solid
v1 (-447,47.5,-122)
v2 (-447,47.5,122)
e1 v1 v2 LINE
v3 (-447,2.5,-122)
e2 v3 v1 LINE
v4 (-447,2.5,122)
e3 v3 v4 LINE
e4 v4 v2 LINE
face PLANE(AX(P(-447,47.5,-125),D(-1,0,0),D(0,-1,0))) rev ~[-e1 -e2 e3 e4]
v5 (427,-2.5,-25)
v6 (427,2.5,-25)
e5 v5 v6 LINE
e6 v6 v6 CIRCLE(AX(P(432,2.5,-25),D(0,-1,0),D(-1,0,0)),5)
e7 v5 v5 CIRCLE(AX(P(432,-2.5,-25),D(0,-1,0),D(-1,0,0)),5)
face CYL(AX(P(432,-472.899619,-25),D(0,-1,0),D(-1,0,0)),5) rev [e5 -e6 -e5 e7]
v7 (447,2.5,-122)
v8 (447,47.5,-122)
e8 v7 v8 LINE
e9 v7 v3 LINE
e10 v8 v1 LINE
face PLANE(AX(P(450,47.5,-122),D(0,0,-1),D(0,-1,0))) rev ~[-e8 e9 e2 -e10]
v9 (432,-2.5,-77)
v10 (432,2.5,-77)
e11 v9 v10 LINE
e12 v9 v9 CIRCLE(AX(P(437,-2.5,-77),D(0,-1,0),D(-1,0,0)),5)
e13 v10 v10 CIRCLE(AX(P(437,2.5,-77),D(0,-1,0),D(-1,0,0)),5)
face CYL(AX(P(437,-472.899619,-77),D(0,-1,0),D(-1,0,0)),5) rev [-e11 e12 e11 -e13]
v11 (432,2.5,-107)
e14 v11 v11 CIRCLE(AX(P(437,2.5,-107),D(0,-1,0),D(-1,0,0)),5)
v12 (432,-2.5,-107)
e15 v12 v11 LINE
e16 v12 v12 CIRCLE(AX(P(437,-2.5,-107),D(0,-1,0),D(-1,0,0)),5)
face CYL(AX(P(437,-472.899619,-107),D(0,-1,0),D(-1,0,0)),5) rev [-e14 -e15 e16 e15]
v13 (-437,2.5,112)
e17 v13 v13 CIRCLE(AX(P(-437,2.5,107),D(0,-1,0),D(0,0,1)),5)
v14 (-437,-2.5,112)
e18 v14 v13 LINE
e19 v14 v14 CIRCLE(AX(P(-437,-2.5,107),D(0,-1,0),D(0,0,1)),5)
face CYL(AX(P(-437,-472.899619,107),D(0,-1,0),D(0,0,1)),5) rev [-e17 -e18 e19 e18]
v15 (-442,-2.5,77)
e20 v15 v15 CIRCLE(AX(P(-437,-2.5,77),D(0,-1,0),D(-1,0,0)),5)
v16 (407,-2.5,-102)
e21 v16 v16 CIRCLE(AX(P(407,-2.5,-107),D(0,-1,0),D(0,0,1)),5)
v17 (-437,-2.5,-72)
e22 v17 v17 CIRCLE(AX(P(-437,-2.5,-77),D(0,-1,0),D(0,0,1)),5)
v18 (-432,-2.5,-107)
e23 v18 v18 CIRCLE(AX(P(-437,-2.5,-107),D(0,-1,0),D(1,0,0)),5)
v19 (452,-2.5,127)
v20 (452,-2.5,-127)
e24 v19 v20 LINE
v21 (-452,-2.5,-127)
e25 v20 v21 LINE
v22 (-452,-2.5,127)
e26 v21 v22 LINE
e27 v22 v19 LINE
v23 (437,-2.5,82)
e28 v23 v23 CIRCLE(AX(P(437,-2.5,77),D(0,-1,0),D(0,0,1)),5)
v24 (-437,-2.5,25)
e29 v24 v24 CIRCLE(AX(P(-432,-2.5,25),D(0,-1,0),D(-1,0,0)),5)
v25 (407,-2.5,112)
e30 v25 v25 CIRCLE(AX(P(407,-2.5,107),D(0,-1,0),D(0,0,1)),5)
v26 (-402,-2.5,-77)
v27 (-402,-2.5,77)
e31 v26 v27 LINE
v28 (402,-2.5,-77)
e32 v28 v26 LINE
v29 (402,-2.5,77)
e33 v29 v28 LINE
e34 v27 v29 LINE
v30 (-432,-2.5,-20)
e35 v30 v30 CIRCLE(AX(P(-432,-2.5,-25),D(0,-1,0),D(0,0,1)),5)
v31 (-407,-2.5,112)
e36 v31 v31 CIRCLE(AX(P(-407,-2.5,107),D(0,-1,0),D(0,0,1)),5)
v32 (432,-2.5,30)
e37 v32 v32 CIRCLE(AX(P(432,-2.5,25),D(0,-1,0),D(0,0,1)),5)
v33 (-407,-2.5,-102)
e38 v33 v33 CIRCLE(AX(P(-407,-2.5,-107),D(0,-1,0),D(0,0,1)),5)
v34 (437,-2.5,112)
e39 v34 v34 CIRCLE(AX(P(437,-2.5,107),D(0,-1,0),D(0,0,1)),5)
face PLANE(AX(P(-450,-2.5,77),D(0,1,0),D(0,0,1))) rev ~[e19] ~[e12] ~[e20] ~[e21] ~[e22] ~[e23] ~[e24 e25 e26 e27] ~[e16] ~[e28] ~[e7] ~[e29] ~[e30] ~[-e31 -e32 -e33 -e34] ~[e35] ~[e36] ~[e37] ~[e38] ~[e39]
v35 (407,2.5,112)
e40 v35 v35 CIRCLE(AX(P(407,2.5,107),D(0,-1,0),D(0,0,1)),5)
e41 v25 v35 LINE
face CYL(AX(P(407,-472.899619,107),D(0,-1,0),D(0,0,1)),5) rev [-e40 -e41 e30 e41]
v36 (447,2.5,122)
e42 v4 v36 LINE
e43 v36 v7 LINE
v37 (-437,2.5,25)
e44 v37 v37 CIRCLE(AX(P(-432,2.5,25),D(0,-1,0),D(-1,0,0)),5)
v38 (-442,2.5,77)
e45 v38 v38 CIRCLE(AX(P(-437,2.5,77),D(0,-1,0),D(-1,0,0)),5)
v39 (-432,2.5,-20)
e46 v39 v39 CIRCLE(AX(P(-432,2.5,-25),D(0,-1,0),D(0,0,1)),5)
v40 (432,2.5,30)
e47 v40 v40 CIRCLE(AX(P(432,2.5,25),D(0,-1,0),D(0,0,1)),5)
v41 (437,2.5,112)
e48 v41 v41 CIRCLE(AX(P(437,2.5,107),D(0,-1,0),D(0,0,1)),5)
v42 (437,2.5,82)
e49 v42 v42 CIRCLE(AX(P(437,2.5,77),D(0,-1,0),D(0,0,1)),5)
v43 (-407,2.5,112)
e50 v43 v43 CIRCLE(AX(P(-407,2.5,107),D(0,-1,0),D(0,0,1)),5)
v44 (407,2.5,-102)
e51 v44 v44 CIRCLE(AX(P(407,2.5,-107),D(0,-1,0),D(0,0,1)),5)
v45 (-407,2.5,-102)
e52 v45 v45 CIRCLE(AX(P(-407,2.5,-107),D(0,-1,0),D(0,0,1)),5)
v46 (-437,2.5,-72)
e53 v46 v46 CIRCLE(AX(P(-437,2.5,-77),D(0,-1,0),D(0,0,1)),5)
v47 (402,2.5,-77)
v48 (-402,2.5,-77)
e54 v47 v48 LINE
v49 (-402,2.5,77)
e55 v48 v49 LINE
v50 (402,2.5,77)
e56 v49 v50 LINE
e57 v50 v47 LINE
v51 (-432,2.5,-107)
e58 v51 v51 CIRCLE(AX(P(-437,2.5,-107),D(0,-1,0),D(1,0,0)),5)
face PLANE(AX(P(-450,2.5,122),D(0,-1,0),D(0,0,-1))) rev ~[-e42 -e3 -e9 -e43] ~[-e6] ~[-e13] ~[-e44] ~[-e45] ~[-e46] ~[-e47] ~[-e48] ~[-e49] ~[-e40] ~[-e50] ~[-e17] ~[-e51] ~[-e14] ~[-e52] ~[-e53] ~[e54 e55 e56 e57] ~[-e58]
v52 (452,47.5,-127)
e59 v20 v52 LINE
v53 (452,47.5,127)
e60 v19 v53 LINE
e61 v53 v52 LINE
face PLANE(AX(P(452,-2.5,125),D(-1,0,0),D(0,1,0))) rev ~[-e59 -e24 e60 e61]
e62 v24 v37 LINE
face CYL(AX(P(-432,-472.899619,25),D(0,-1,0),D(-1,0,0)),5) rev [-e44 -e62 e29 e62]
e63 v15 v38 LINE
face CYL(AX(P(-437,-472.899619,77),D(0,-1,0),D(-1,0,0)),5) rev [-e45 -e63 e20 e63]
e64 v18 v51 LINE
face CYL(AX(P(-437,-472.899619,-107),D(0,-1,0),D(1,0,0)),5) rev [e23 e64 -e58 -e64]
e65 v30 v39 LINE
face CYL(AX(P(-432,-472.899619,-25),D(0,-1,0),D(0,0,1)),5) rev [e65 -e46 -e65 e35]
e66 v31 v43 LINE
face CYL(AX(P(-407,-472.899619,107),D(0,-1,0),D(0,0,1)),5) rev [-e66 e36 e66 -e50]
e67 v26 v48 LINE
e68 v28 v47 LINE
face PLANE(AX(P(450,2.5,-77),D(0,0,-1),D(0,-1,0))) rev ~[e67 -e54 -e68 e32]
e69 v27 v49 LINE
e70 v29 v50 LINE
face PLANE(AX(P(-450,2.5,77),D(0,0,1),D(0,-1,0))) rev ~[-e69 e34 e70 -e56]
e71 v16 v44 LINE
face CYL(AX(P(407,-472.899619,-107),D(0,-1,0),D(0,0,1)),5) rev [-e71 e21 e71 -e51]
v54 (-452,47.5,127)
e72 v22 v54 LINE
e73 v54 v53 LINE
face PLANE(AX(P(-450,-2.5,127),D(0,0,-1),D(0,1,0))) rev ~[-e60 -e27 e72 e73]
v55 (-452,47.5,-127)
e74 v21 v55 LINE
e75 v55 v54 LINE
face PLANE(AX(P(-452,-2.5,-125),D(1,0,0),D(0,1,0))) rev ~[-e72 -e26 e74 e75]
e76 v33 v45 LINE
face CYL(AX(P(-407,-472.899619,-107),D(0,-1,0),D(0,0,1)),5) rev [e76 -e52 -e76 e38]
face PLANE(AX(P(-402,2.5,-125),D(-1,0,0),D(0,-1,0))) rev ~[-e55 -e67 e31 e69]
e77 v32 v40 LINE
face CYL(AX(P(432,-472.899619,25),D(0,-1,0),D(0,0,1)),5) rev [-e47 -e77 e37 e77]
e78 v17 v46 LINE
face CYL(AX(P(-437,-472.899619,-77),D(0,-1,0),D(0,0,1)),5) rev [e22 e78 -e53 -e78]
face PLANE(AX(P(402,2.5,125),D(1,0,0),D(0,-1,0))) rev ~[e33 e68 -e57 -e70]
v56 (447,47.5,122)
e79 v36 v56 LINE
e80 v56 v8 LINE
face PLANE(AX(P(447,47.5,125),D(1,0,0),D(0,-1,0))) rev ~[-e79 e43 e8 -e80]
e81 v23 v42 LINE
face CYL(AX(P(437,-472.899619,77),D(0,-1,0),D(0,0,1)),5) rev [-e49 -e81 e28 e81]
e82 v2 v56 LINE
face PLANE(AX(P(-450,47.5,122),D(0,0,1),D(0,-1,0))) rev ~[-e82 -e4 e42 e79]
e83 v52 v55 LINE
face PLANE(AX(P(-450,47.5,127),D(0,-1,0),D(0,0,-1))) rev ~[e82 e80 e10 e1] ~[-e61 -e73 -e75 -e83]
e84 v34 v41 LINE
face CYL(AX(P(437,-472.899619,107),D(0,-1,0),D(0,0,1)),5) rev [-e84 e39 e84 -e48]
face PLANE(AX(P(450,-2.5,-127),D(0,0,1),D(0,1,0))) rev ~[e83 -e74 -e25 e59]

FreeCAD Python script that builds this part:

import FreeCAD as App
import Part
import Sketcher

doc = App.newDocument("Part")
body = doc.addObject("PartDesign::Body", "Body")

sketch1 = body.newObject("Sketcher::SketchObject", "Sketch")
sketch1.AttachmentSupport = (doc.getObject("XY_Plane"), [""])
sketch1.MapMode = "FlatFace"
sketch1.addGeometry([
    Part.LineSegment(App.Vector(402, -2, 0), App.Vector(452, -2, 0)),
    Part.LineSegment(App.Vector(452, -2, 0), App.Vector(452, 48, 0)),
    Part.LineSegment(App.Vector(452, 48, 0), App.Vector(447, 48, 0)),
    Part.LineSegment(App.Vector(447, 48, 0), App.Vector(447, 2, 0)),
    Part.LineSegment(App.Vector(447, 2, 0), App.Vector(402, 2, 0)),
    Part.LineSegment(App.Vector(402, 2, 0), App.Vector(402, -2, 0)),
], False)
sketch1.addConstraint([
    Sketcher.Constraint("Coincident", 0, 2, 1, 1),
    Sketcher.Constraint("Coincident", 1, 2, 2, 1),
    Sketcher.Constraint("Coincident", 2, 2, 3, 1),
    Sketcher.Constraint("Coincident", 3, 2, 4, 1),
    Sketcher.Constraint("Coincident", 4, 2, 5, 1),
    Sketcher.Constraint("Coincident", 5, 2, 0, 1),
    Sketcher.Constraint("Horizontal", 0),
    Sketcher.Constraint("Vertical", 1),
    Sketcher.Constraint("Horizontal", 2),
    Sketcher.Constraint("Vertical", 3),
    Sketcher.Constraint("Horizontal", 4),
    Sketcher.Constraint("Vertical", 5),
    Sketcher.Constraint("Equal", 0, 1),
    Sketcher.Constraint("Equal", 4, 3),
    Sketcher.Constraint("DistanceX", 0, 1, 0, 2, 50.0),
    Sketcher.Constraint("DistanceX", 2, 2, 2, 1, 5.0),
    Sketcher.Constraint("DistanceX", -1, 1, 0, 2, 452.0),
    Sketcher.Constraint("DistanceY", 0, 2, -1, 1, 2.5),
])

sketch2 = body.newObject("Sketcher::SketchObject", "Sketch001")
sketch2.AttachmentSupport = (doc.getObject("XZ_Plane"), [""])
sketch2.MapMode = "FlatFace"
sketch2.addGeometry([
    Part.LineSegment(App.Vector(-450, 125, 0), App.Vector(450, 125, 0)),
    Part.LineSegment(App.Vector(450, 125, 0), App.Vector(450, -125, 0)),
    Part.LineSegment(App.Vector(450, -125, 0), App.Vector(-450, -125, 0)),
    Part.LineSegment(App.Vector(-450, -125, 0), App.Vector(-450, 125, 0)),
], False)
sketch2.addConstraint([
    Sketcher.Constraint("Coincident", 0, 2, 1, 1),
    Sketcher.Constraint("Coincident", 1, 2, 2, 1),
    Sketcher.Constraint("Coincident", 2, 2, 3, 1),
    Sketcher.Constraint("Coincident", 3, 2, 0, 1),
    Sketcher.Constraint("Horizontal", 0),
    Sketcher.Constraint("Vertical", 1),
    Sketcher.Constraint("Horizontal", 2),
    Sketcher.Constraint("Vertical", 3),
    Sketcher.Constraint("Symmetric", 0, 2, 2, 2, -1, 1),
    Sketcher.Constraint("DistanceX", 0, 1, 0, 2, 900.0),
    Sketcher.Constraint("DistanceY", 1, 2, 1, 1, 250.0),
])
doc.recompute()

additivepipe = body.newObject("PartDesign::AdditivePipe", "AdditivePipe")
additivepipe.Profile = sketch1
additivepipe.Spine = (sketch2, ["Edge1", "Edge2", "Edge3", "Edge4"])
additivepipe.Transition = "Right corner"

sketch3 = body.newObject("Sketcher::SketchObject", "Sketch002")
sketch3.AttachmentSupport = (doc.getObject("XZ_Plane"), [""])
sketch3.MapMode = "FlatFace"
sketch3.addGeometry([
    Part.Circle(App.Vector(-437, -107, 0), App.Vector(0, 0, 1), 5),
    Part.Circle(App.Vector(-407, -107, 0), App.Vector(0, 0, 1), 5),
    Part.Circle(App.Vector(-432, -25, 0), App.Vector(0, 0, 1), 5),
    Part.Circle(App.Vector(-437, -77, 0), App.Vector(0, 0, 1), 5),
    Part.Circle(App.Vector(-407, 107, 0), App.Vector(0, 0, 1), 5),
    Part.Circle(App.Vector(-437, 107, 0), App.Vector(0, 0, 1), 5),
    Part.Circle(App.Vector(-437, 77, 0), App.Vector(0, 0, 1), 5),
    Part.Circle(App.Vector(-432, 25, 0), App.Vector(0, 0, 1), 5),
    Part.Circle(App.Vector(432, 25, 0), App.Vector(0, 0, 1), 5),
    Part.Circle(App.Vector(437, 77, 0), App.Vector(0, 0, 1), 5),
    Part.Circle(App.Vector(437, 107, 0), App.Vector(0, 0, 1), 5),
    Part.Circle(App.Vector(407, 107, 0), App.Vector(0, 0, 1), 5),
    Part.Circle(App.Vector(437, -77, 0), App.Vector(0, 0, 1), 5),
    Part.Circle(App.Vector(432, -25, 0), App.Vector(0, 0, 1), 5),
    Part.Circle(App.Vector(407, -107, 0), App.Vector(0, 0, 1), 5),
    Part.Circle(App.Vector(437, -107, 0), App.Vector(0, 0, 1), 5),
], False)
sketch3.addConstraint([
    Sketcher.Constraint("Equal", 0, 1),
    Sketcher.Constraint("Equal", 1, 2),
    Sketcher.Constraint("Equal", 2, 3),
    Sketcher.Constraint("Equal", 3, 4),
    Sketcher.Constraint("Equal", 4, 5),
    Sketcher.Constraint("Equal", 5, 6),
    Sketcher.Constraint("Equal", 6, 7),
    Sketcher.Constraint("Equal", 7, 8),
    Sketcher.Constraint("Equal", 8, 9),
    Sketcher.Constraint("Equal", 9, 10),
    Sketcher.Constraint("Equal", 10, 11),
    Sketcher.Constraint("Equal", 11, 12),
    Sketcher.Constraint("Equal", 12, 13),
    Sketcher.Constraint("Equal", 13, 14),
    Sketcher.Constraint("Equal", 14, 15),
    Sketcher.Constraint("Symmetric", 2, 3, 8, 3, -1, 1),
    Sketcher.Constraint("Symmetric", 3, 3, 9, 3, -1, 1),
    Sketcher.Constraint("Symmetric", 0, 3, 10, 3, -1, 1),
    Sketcher.Constraint("Symmetric", 1, 3, 11, 3, -1, 1),
    Sketcher.Constraint("Symmetric", 6, 3, 12, 3, -1, 1),
    Sketcher.Constraint("Symmetric", 7, 3, 13, 3, -1, 1),
    Sketcher.Constraint("Symmetric", 4, 3, 14, 3, -1, 1),
    Sketcher.Constraint("Symmetric", 5, 3, 15, 3, -1, 1),
    Sketcher.Constraint("Symmetric", 7, 3, 8, 3, -2),
    Sketcher.Constraint("Symmetric", 6, 3, 9, 3, -2),
    Sketcher.Constraint("Symmetric", 5, 3, 10, 3, -2),
    Sketcher.Constraint("Symmetric", 4, 3, 11, 3, -2),
    Sketcher.Constraint("Horizontal", 0, 3, 1, 3),
    Sketcher.Constraint("Vertical", 0, 3, 3, 3),
    Sketcher.Constraint("Diameter", 0, 10.0),
    Sketcher.Constraint("DistanceX", 0, 3, -1, 1, 437.0),
    Sketcher.Constraint("DistanceY", 0, 3, -1, 1, 107.0),
    Sketcher.Constraint("DistanceX", 1, 3, -1, 1, 407.0),
    Sketcher.Constraint("DistanceX", 2, 3, -1, 1, 432.0),
    Sketcher.Constraint("DistanceY", 2, 3, -1, 1, 25.0),
    Sketcher.Constraint("DistanceY", 3, 3, -1, 1, 77.0),
])
pocket1 = body.newObject("PartDesign::Pocket", "Pocket")
pocket1.Profile = sketch3
pocket1.Type = "ThroughAll"
pocket1.Midplane = True

doc.recompute()
